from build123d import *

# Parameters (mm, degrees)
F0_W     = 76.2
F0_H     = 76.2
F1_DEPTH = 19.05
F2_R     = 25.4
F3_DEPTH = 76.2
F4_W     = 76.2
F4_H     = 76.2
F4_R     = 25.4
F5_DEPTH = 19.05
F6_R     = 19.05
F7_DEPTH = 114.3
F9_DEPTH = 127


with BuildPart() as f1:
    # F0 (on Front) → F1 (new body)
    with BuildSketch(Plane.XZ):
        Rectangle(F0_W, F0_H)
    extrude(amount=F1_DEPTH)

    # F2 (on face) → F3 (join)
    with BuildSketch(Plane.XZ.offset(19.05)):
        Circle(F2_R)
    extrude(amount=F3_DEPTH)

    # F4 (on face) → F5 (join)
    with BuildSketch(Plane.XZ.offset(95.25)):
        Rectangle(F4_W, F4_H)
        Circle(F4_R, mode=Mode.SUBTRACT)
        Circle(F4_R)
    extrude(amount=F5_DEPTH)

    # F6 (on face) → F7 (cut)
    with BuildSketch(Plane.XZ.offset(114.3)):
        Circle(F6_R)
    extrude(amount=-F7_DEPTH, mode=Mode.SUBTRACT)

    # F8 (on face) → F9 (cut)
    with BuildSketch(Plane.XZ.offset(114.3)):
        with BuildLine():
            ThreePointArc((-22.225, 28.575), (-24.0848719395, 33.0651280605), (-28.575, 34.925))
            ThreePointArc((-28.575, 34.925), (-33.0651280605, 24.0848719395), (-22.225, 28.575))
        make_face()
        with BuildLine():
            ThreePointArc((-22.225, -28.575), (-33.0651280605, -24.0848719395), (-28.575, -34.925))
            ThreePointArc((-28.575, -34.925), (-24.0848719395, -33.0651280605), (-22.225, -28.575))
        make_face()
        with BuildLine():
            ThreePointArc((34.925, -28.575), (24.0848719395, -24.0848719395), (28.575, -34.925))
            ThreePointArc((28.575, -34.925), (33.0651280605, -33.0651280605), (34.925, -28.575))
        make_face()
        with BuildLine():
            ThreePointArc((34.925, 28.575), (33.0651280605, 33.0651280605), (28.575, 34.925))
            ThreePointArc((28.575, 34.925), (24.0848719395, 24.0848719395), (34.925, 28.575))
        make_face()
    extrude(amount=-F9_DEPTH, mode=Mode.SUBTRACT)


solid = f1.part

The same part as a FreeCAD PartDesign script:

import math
import FreeCAD as App
import Part
import Sketcher
from FreeCAD import Vector
Q = App.Units.Quantity


def add_polygon(sketch, points):
    """Adds a closed chain of lines whose ends are joined by coincident constraints."""
    first, n = sketch.GeometryCount, len(points)
    for a, b in zip(points, points[1:] + points[:1]):
        sketch.addGeometry(Part.LineSegment(App.Vector(*a, 0), App.Vector(*b, 0)), False)
    for i in range(n):
        sketch.addConstraint(Sketcher.Constraint("Coincident", first + i, 2, first + (i + 1) % n, 1))

doc = App.newDocument("Part")
body = doc.addObject("PartDesign::Body", "Body")

# Sketch on XZ plane
sketch1 = doc.addObject("Sketcher::SketchObject", "Sketch")
body.addObject(sketch1)
sketch1.AttachmentSupport = (doc.XZ_Plane, [""])
sketch1.MapMode = "FlatFace"
add_polygon(sketch1, [(-38, 38), (-38, -38), (38, -38), (38, 38)])  # lines 0-3
sketch1.addConstraint([
    Sketcher.Constraint("Vertical", 0),
    Sketcher.Constraint("Horizontal", 1),
    Sketcher.Constraint("Vertical", 2),
    Sketcher.Constraint("Horizontal", 3),
    Sketcher.Constraint("Symmetric", 0, 2, 2, 2, -1, 1),
    Sketcher.Constraint("Equal", 3, 0),
    Sketcher.Constraint("DistanceX", 1, 1, 1, 2, Q("3 in")),
])
pad1 = doc.addObject("PartDesign::Pad", "Pad")
body.addObject(pad1)
pad1.Profile = sketch1
pad1.Length = Q("0.75 in")

# Sketch on XZ plane
sketch2 = doc.addObject("Sketcher::SketchObject", "Sketch001")
body.addObject(sketch2)
sketch2.AttachmentSupport = (doc.XZ_Plane, [""])
sketch2.MapMode = "FlatFace"
sketch2.AttachmentOffset = App.Placement(Vector(0, 0, 0.75 * 25.4), App.Rotation())
sketch2.addGeometry(Part.Circle(Vector(0, 0, 0), Vector(0, 0, 1), 25), False)
sketch2.addConstraint([
    Sketcher.Constraint("Coincident", 0, 3, -1, 1),
    Sketcher.Constraint("Diameter", 0, Q("2 in")),
])
pad2 = doc.addObject("PartDesign::Pad", "Pad001")
body.addObject(pad2)
pad2.Profile = sketch2
pad2.Length = Q("3 in")

# Sketch on XZ plane
sketch3 = doc.addObject("Sketcher::SketchObject", "Sketch002")
body.addObject(sketch3)
sketch3.AttachmentSupport = (doc.XZ_Plane, [""])
sketch3.MapMode = "FlatFace"
sketch3.AttachmentOffset = App.Placement(Vector(0, 0, 3.75 * 25.4), App.Rotation())
add_polygon(sketch3, [(-38, 38), (-38, -38), (38, -38), (38, 38)])  # lines 0-3
sketch3.addConstraint([
    Sketcher.Constraint("Vertical", 0),
    Sketcher.Constraint("Horizontal", 1),
    Sketcher.Constraint("Vertical", 2),
    Sketcher.Constraint("Horizontal", 3),
    Sketcher.Constraint("Symmetric", 0, 2, 2, 2, -1, 1),
    Sketcher.Constraint("Equal", 3, 0),
    Sketcher.Constraint("DistanceX", 1, 1, 1, 2, Q("3 in")),
])
pad3 = doc.addObject("PartDesign::Pad", "Pad002")
body.addObject(pad3)
pad3.Profile = sketch3
pad3.Length = Q("0.75 in")

# Sketch on XZ plane
sketch4 = doc.addObject("Sketcher::SketchObject", "Sketch003")
body.addObject(sketch4)
sketch4.AttachmentSupport = (doc.XZ_Plane, [""])
sketch4.MapMode = "FlatFace"
sketch4.AttachmentOffset = App.Placement(Vector(0, 0, 4.5 * 25.4), App.Rotation())
sketch4.addGeometry(Part.Circle(Vector(0, 0, 0), Vector(0, 0, 1), 19), False)
sketch4.addConstraint([
    Sketcher.Constraint("Coincident", 0, 3, -1, 1),
    Sketcher.Constraint("Diameter", 0, Q("1.5 in")),
])
pocket1 = doc.addObject("PartDesign::Pocket", "Pocket")
body.addObject(pocket1)
pocket1.Profile = sketch4
pocket1.Length = Q("4.5 in")

# Sketch on XZ plane
sketch5 = doc.addObject("Sketcher::SketchObject", "Sketch004")
body.addObject(sketch5)
sketch5.AttachmentSupport = (doc.XZ_Plane, [""])
sketch5.MapMode = "FlatFace"
sketch5.AttachmentOffset = App.Placement(Vector(0, 0, 4.5 * 25.4), App.Rotation())
sketch5.addGeometry([
    Part.ArcOfCircle(Part.Circle(Vector(-29, 29, 0), Vector(0, 0, 1), 6), math.radians(0), math.radians(90)),  # 0
    Part.ArcOfCircle(Part.Circle(Vector(-29, 29, 0), Vector(0, 0, 1), 6), math.radians(90), math.radians(360)),  # 1
    Part.ArcOfCircle(Part.Circle(Vector(-29, -29, 0), Vector(0, 0, 1), 6), math.radians(0), math.radians(270)),  # 2
    Part.ArcOfCircle(Part.Circle(Vector(-29, -29, 0), Vector(0, 0, 1), 6), math.radians(-90), math.radians(0)),  # 3
    Part.ArcOfCircle(Part.Circle(Vector(29, -29, 0), Vector(0, 0, 1), 6), math.radians(0), math.radians(270)),  # 4
    Part.ArcOfCircle(Part.Circle(Vector(29, -29, 0), Vector(0, 0, 1), 6), math.radians(-90), math.radians(0)),  # 5
    Part.ArcOfCircle(Part.Circle(Vector(29, 29, 0), Vector(0, 0, 1), 6), math.radians(0), math.radians(90)),  # 6
    Part.ArcOfCircle(Part.Circle(Vector(29, 29, 0), Vector(0, 0, 1), 6), math.radians(90), math.radians(360)),  # 7
], False)
sketch5.addConstraint([
    Sketcher.Constraint("Tangent", 0, 1, 1, 2),
    Sketcher.Constraint("Coincident", 1, 1, 0, 2),
    Sketcher.Constraint("Tangent", 2, 1, 3, 2),
    Sketcher.Constraint("Coincident", 3, 1, 2, 2),
    Sketcher.Constraint("Tangent", 4, 1, 5, 2),
    Sketcher.Constraint("Coincident", 5, 1, 4, 2),
    Sketcher.Constraint("Tangent", 6, 1, 7, 2),
    Sketcher.Constraint("Coincident", 7, 1, 6, 2),
    Sketcher.Constraint("Equal", 1, 2),
    Sketcher.Constraint("Equal", 3, 4),
    Sketcher.Constraint("Equal", 5, 6),
    Sketcher.Constraint("Symmetric", 0, 3, 4, 3, -1, 1),
    Sketcher.Constraint("Symmetric", 2, 3, 6, 3, -1, 1),
    Sketcher.Constraint("Symmetric", 2, 3, 4, 3, -2),
    Sketcher.Constraint("Horizontal", 7, 3, 0, 1),
    Sketcher.Constraint("Horizontal", 5, 3, 2, 1),
    Sketcher.Constraint("Horizontal", 2, 1, 4, 1),
    Sketcher.Constraint("Horizontal", 0, 1, 6, 1),
    Sketcher.Constraint("Vertical", 3, 3, 1, 1),
    Sketcher.Constraint("Vertical", 1, 1, 3, 1),
    Sketcher.Constraint("Vertical", 7, 3, 5, 1),
    Sketcher.Constraint("Vertical", 5, 1, 7, 1),
    Sketcher.Constraint("Radius", 0, Q("0.25 in")),
    Sketcher.Constraint("DistanceX", 0, 1, 6, 3, Q("2 in")),
    Sketcher.Constraint("DistanceY", 2, 3, 0, 3, Q("2.25 in")),
])
pocket2 = doc.addObject("PartDesign::Pocket", "Pocket001")
body.addObject(pocket2)
pocket2.Profile = sketch5
pocket2.Length = Q("5 in")

doc.recompute()
